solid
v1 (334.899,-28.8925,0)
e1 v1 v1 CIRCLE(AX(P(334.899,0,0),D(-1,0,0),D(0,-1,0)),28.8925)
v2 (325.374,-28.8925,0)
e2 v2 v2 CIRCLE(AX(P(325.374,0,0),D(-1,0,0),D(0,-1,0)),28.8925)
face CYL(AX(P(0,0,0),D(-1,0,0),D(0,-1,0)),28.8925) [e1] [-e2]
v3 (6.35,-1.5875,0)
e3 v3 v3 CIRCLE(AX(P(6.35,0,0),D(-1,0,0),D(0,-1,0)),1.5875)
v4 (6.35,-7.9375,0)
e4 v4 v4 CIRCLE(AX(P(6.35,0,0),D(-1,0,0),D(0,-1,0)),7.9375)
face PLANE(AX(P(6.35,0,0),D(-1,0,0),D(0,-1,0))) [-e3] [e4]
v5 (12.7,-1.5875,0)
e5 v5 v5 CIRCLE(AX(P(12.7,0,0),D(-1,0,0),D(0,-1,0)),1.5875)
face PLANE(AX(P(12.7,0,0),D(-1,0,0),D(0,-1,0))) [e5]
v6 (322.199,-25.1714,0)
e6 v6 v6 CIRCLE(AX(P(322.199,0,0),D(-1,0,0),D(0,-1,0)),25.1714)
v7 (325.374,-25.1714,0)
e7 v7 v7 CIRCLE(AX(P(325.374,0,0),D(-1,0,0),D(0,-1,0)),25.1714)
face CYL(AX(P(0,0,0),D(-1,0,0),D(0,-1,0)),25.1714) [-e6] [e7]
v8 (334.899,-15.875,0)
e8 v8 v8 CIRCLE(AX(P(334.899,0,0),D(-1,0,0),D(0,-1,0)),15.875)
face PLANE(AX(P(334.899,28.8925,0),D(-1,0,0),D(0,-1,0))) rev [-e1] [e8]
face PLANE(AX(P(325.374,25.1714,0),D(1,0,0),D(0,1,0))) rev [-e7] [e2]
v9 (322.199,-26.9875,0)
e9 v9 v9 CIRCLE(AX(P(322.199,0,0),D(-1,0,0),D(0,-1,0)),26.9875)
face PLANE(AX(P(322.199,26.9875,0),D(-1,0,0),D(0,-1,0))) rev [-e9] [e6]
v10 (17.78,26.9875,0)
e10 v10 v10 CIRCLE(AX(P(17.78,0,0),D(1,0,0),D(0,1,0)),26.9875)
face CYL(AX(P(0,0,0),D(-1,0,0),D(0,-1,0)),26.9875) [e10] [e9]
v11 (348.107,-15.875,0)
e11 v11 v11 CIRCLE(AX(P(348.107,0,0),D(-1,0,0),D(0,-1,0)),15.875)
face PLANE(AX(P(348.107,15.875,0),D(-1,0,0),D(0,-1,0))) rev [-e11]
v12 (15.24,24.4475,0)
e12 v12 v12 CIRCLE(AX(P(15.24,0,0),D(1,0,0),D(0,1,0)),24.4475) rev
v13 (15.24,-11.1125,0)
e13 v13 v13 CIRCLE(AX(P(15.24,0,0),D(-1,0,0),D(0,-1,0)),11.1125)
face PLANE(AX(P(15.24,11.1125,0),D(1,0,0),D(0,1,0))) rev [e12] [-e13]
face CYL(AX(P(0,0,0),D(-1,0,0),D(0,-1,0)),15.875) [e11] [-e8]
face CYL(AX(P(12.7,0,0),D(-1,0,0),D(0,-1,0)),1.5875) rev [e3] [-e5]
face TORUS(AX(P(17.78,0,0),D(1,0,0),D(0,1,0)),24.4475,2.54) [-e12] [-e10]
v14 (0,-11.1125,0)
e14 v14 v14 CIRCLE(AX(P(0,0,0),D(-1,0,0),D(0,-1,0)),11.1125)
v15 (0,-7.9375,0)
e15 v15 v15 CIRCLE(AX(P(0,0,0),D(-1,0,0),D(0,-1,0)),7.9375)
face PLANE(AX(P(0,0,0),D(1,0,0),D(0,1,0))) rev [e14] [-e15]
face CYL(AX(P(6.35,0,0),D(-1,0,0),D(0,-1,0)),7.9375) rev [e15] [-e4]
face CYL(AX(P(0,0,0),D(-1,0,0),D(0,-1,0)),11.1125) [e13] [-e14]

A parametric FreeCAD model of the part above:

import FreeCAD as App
import Part
import Sketcher

V = App.Vector
Q = App.Units.Quantity


def edges_at(feature, points):
    """Names of the edges that pass closest to the given points."""
    edges = feature.Shape.Edges
    near = lambda p: min(range(len(edges)), key=lambda i: edges[i].distToShape(Part.Vertex(*p))[0])
    return sorted({f"Edge{near(p) + 1}" for p in points})

doc = App.newDocument("Part")
body = doc.addObject("PartDesign::Body", "Body")

sketch1 = doc.addObject("Sketcher::SketchObject", "Sketch")
body.addObject(sketch1)
sketch1.AttachmentSupport = (doc.XY_Plane, [""])
sketch1.MapMode = "FlatFace"
sketch1.addGeometry(Part.LineSegment(V(0, 11.1, 0), V(0, 0, 0)), False)
sketch1.addGeometry(Part.LineSegment(V(0, 0, 0), V(348.1, 0, 0)), False)
sketch1.addGeometry(Part.LineSegment(V(348.1, 0, 0), V(348.1, 15.9, 0)), False)
sketch1.addGeometry(Part.LineSegment(V(348.1, 15.9, 0), V(334.9, 15.9, 0)), False)
sketch1.addGeometry(Part.LineSegment(V(334.9, 15.9, 0), V(334.9, 28.9, 0)), False)
sketch1.addGeometry(Part.LineSegment(V(334.9, 28.9, 0), V(325.4, 28.9, 0)), False)
sketch1.addGeometry(Part.LineSegment(V(325.4, 28.9, 0), V(325.4, 25.2, 0)), False)
sketch1.addGeometry(Part.LineSegment(V(325.4, 25.2, 0), V(322.2, 25.2, 0)), False)
sketch1.addGeometry(Part.LineSegment(V(322.2, 25.2, 0), V(322.2, 27, 0)), False)
sketch1.addGeometry(Part.LineSegment(V(322.2, 27, 0), V(15.2, 27, 0)), False)
sketch1.addGeometry(Part.LineSegment(V(15.2, 27, 0), V(15.2, 11.1, 0)), False)
sketch1.addGeometry(Part.LineSegment(V(15.2, 11.1, 0), V(0, 11.1, 0)), False)
sketch1.addConstraint(Sketcher.Constraint("Coincident", 0, 2, 1, 1))
sketch1.addConstraint(Sketcher.Constraint("Coincident", 1, 2, 2, 1))
sketch1.addConstraint(Sketcher.Constraint("Coincident", 2, 2, 3, 1))
sketch1.addConstraint(Sketcher.Constraint("Coincident", 3, 2, 4, 1))
sketch1.addConstraint(Sketcher.Constraint("Coincident", 4, 2, 5, 1))
sketch1.addConstraint(Sketcher.Constraint("Coincident", 5, 2, 6, 1))
sketch1.addConstraint(Sketcher.Constraint("Coincident", 6, 2, 7, 1))
sketch1.addConstraint(Sketcher.Constraint("Coincident", 7, 2, 8, 1))
sketch1.addConstraint(Sketcher.Constraint("Coincident", 8, 2, 9, 1))
sketch1.addConstraint(Sketcher.Constraint("Coincident", 9, 2, 10, 1))
sketch1.addConstraint(Sketcher.Constraint("Coincident", 10, 2, 11, 1))
sketch1.addConstraint(Sketcher.Constraint("Coincident", 11, 2, 0, 1))
sketch1.addConstraint(Sketcher.Constraint("Vertical", 0))
sketch1.addConstraint(Sketcher.Constraint("Horizontal", 1))
sketch1.addConstraint(Sketcher.Constraint("Vertical", 2))
sketch1.addConstraint(Sketcher.Constraint("Horizontal", 3))
sketch1.addConstraint(Sketcher.Constraint("Vertical", 4))
sketch1.addConstraint(Sketcher.Constraint("Horizontal", 5))
sketch1.addConstraint(Sketcher.Constraint("Vertical", 6))
sketch1.addConstraint(Sketcher.Constraint("Horizontal", 7))
sketch1.addConstraint(Sketcher.Constraint("Vertical", 8))
sketch1.addConstraint(Sketcher.Constraint("Horizontal", 9))
sketch1.addConstraint(Sketcher.Constraint("Vertical", 10))
sketch1.addConstraint(Sketcher.Constraint("Horizontal", 11))
sketch1.addConstraint(Sketcher.Constraint("Coincident", 0, 2, -1, 1))
sketch1.addConstraint(Sketcher.Constraint("Equal", 2, 10))
sketch1.addConstraint(Sketcher.Constraint("DistanceX", 11, 2, 11, 1, Q("0.6 in")))
sketch1.addConstraint(Sketcher.Constraint("DistanceX", 3, 2, 3, 1, Q("0.52 in")))
sketch1.addConstraint(Sketcher.Constraint("DistanceX", 7, 2, 4, 2, Q("0.5 in")))
sketch1.addConstraint(Sketcher.Constraint("DistanceX", 1, 1, 1, 2, Q("13.705 in")))
sketch1.addConstraint(Sketcher.Constraint("DistanceX", 5, 2, 5, 1, Q("0.375 in")))
sketch1.addConstraint(Sketcher.Constraint("DistanceY", 0, 2, 0, 1, Q("0.4375 in")))
sketch1.addConstraint(Sketcher.Constraint("DistanceY", 2, 1, 2, 2, Q("0.625 in")))
sketch1.addConstraint(Sketcher.Constraint("DistanceY", 4, 1, 4, 2, Q("0.5125 in")))
sketch1.addConstraint(Sketcher.Constraint("DistanceY", 6, 2, 6, 1, Q("0.1465 in")))
revolution = doc.addObject("PartDesign::Revolution", "Revolution")
body.addObject(revolution)
revolution.Profile = sketch1
revolution.ReferenceAxis = (sketch1, ["H_Axis"])
revolution.Angle = 360
doc.recompute()

fillet = doc.addObject("PartDesign::Fillet", "Fillet")
body.addObject(fillet)
fillet.Base = (revolution, edges_at(revolution, [(15.24, -26.988, 0)]))
fillet.Radius = Q("0.1 in")

sketch2 = doc.addObject("Sketcher::SketchObject", "Sketch001")
body.addObject(sketch2)
sketch2.AttachmentSupport = (doc.YZ_Plane, [""])
sketch2.MapMode = "FlatFace"
sketch2.addGeometry(Part.Circle(V(0, 0, 0), V(0, 0, 1), 8), False)
sketch2.addConstraint(Sketcher.Constraint("Coincident", 0, 3, -1, 1))
sketch2.addConstraint(Sketcher.Constraint("Diameter", 0, Q("0.625 in")))
pocket1 = doc.addObject("PartDesign::Pocket", "Pocket")
body.addObject(pocket1)
pocket1.Profile = sketch2
pocket1.Length = Q("0.25 in")
pocket1.Reversed = True

sketch3 = doc.addObject("Sketcher::SketchObject", "Sketch002")
body.addObject(sketch3)
sketch3.AttachmentSupport = (doc.YZ_Plane, [""])
sketch3.MapMode = "FlatFace"
sketch3.AttachmentOffset = App.Placement(V(0, 0, 0.25 * 25.4), App.Rotation())
sketch3.addGeometry(Part.Circle(V(0, 0, 0), V(0, 0, 1), 1.6), False)
sketch3.addConstraint(Sketcher.Constraint("Coincident", 0, 3, -1, 1))
sketch3.addConstraint(Sketcher.Constraint("Diameter", 0, Q("0.125 in")))
pocket2 = doc.addObject("PartDesign::Pocket", "Pocket001")
body.addObject(pocket2)
pocket2.Profile = sketch3
pocket2.Length = Q("0.25 in")
pocket2.Reversed = True

doc.recompute()
